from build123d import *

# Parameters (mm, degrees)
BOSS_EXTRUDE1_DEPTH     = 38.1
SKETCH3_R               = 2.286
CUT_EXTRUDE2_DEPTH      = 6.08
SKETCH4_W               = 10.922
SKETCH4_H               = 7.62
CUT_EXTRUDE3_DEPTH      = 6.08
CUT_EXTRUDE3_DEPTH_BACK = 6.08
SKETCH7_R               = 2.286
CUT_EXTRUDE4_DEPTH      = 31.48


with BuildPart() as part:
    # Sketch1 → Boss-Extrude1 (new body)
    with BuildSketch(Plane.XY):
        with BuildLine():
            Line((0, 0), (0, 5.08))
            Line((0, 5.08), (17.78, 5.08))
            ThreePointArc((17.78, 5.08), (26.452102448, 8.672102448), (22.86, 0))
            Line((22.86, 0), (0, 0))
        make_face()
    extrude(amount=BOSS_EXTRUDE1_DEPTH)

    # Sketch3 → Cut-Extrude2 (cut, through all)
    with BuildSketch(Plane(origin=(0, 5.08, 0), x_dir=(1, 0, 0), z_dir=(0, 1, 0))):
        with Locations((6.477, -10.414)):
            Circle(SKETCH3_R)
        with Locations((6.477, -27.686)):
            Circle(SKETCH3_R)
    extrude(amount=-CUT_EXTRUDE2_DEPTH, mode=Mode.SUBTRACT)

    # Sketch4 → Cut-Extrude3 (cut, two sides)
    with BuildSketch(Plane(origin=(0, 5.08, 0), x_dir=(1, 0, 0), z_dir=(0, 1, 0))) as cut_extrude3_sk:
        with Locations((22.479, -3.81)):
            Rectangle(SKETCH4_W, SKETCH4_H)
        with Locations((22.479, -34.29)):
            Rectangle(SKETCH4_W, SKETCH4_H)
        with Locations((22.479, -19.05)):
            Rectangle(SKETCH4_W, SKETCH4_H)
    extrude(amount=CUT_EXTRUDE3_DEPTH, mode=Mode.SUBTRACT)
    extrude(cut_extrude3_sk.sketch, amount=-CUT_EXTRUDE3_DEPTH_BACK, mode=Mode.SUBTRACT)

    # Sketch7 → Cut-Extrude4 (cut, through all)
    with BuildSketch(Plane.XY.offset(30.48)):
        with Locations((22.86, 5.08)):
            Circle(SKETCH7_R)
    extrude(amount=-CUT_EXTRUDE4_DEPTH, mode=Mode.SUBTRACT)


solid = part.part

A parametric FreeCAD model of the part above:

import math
import FreeCAD as App
import Part
import Sketcher
from FreeCAD import Vector
Q = App.Units.Quantity

doc = App.newDocument("Part")
body = doc.addObject("PartDesign::Body", "Body")

sketch1 = body.newObject("Sketcher::SketchObject", "Sketch")
sketch1.AttachmentSupport = (doc.getObject("XY_Plane"), [""])
sketch1.MapMode = "FlatFace"
sketch1.addGeometry(Part.LineSegment(Vector(0, 5.08, 0), Vector(0, 0, 0)), False)
sketch1.addGeometry(Part.LineSegment(Vector(0, 0, 0), Vector(22.86, 0, 0)), False)
sketch1.addGeometry(Part.ArcOfCircle(Part.Circle(Vector(22.86, 5.08, 0), Vector(0, 0, 1), 5.08), math.radians(-90), math.radians(180)), False)
sketch1.addGeometry(Part.LineSegment(Vector(17.78, 5.08, 0), Vector(0, 5.08, 0)), False)
sketch1.addConstraint(Sketcher.Constraint("Coincident", 0, 2, 1, 1))
sketch1.addConstraint(Sketcher.Constraint("Tangent", 1, 2, 2, 1))
sketch1.addConstraint(Sketcher.Constraint("Coincident", 2, 2, 3, 1))
sketch1.addConstraint(Sketcher.Constraint("Coincident", 3, 2, 0, 1))
sketch1.addConstraint(Sketcher.Constraint("Vertical", 0))
sketch1.addConstraint(Sketcher.Constraint("Horizontal", 1))
sketch1.addConstraint(Sketcher.Constraint("Horizontal", 3))
sketch1.addConstraint(Sketcher.Constraint("Coincident", 0, 2, -1, 1))
sketch1.addConstraint(Sketcher.Constraint("Radius", 2, Q("0.2 in")))
sketch1.addConstraint(Sketcher.Constraint("DistanceX", 1, 1, 1, 2, Q("0.9 in")))
sketch1.addConstraint(Sketcher.Constraint("DistanceY", 0, 2, 0, 1, Q("0.2 in")))
pad1 = body.newObject("PartDesign::Pad", "Pad")
pad1.Profile = sketch1
pad1.Length = Q("1.5 in")

sketch2 = body.newObject("Sketcher::SketchObject", "Sketch001")
sketch2.AttachmentSupport = (doc.getObject("XZ_Plane"), [""])
sketch2.MapMode = "FlatFace"
sketch2.AttachmentOffset = App.Placement(Vector(0, 0, -0.2 * 25.4), App.Rotation())
sketch2.addGeometry(Part.Circle(Vector(6.477, 10.414, 0), Vector(0, 0, 1), 2.286), False)
sketch2.addGeometry(Part.Circle(Vector(6.477, 27.686, 0), Vector(0, 0, 1), 2.286), False)
sketch2.addConstraint(Sketcher.Constraint("Equal", 0, 1))
sketch2.addConstraint(Sketcher.Constraint("Vertical", 0, 3, 1, 3))
sketch2.addConstraint(Sketcher.Constraint("Diameter", 0, Q("0.18 in")))
sketch2.addConstraint(Sketcher.Constraint("DistanceY", -1, 1, 0, 3, Q("0.41 in")))
sketch2.addConstraint(Sketcher.Constraint("DistanceY", -1, 1, 1, 3, Q("1.09 in")))
sketch2.addConstraint(Sketcher.Constraint("DistanceX", -1, 1, 0, 3, Q("0.255 in")))
pocket1 = body.newObject("PartDesign::Pocket", "Pocket")
pocket1.Profile = sketch2
pocket1.Type = "ThroughAll"
pocket1.Reversed = True

sketch3 = body.newObject("Sketcher::SketchObject", "Sketch002")
sketch3.AttachmentSupport = (doc.getObject("XZ_Plane"), [""])
sketch3.MapMode = "FlatFace"
sketch3.AttachmentOffset = App.Placement(Vector(0, 0, -0.2 * 25.4), App.Rotation())
sketch3.addGeometry(Part.LineSegment(Vector(17.018, 0, 0), Vector(17.018, 7.62, 0)), False)
sketch3.addGeometry(Part.LineSegment(Vector(17.018, 7.62, 0), Vector(27.94, 7.62, 0)), False)
sketch3.addGeometry(Part.LineSegment(Vector(27.94, 7.62, 0), Vector(27.94, 0, 0)), False)
sketch3.addGeometry(Part.LineSegment(Vector(27.94, 0, 0), Vector(17.018, 0, 0)), False)
sketch3.addGeometry(Part.LineSegment(Vector(17.018, 30.48, 0), Vector(17.018, 38.1, 0)), False)
sketch3.addGeometry(Part.LineSegment(Vector(17.018, 38.1, 0), Vector(27.94, 38.1, 0)), False)
sketch3.addGeometry(Part.LineSegment(Vector(27.94, 38.1, 0), Vector(27.94, 30.48, 0)), False)
sketch3.addGeometry(Part.LineSegment(Vector(27.94, 30.48, 0), Vector(17.018, 30.48, 0)), False)
sketch3.addGeometry(Part.LineSegment(Vector(17.018, 15.24, 0), Vector(17.018, 22.86, 0)), False)
sketch3.addGeometry(Part.LineSegment(Vector(17.018, 22.86, 0), Vector(27.94, 22.86, 0)), False)
sketch3.addGeometry(Part.LineSegment(Vector(27.94, 22.86, 0), Vector(27.94, 15.24, 0)), False)
sketch3.addGeometry(Part.LineSegment(Vector(27.94, 15.24, 0), Vector(17.018, 15.24, 0)), False)
sketch3.addConstraint(Sketcher.Constraint("Coincident", 0, 2, 1, 1))
sketch3.addConstraint(Sketcher.Constraint("Coincident", 1, 2, 2, 1))
sketch3.addConstraint(Sketcher.Constraint("Coincident", 2, 2, 3, 1))
sketch3.addConstraint(Sketcher.Constraint("Coincident", 3, 2, 0, 1))
sketch3.addConstraint(Sketcher.Constraint("Coincident", 4, 2, 5, 1))
sketch3.addConstraint(Sketcher.Constraint("Coincident", 5, 2, 6, 1))
sketch3.addConstraint(Sketcher.Constraint("Coincident", 6, 2, 7, 1))
sketch3.addConstraint(Sketcher.Constraint("Coincident", 7, 2, 4, 1))
sketch3.addConstraint(Sketcher.Constraint("Coincident", 8, 2, 9, 1))
sketch3.addConstraint(Sketcher.Constraint("Coincident", 9, 2, 10, 1))
sketch3.addConstraint(Sketcher.Constraint("Coincident", 10, 2, 11, 1))
sketch3.addConstraint(Sketcher.Constraint("Coincident", 11, 2, 8, 1))
sketch3.addConstraint(Sketcher.Constraint("Vertical", 0))
sketch3.addConstraint(Sketcher.Constraint("Horizontal", 1))
sketch3.addConstraint(Sketcher.Constraint("Vertical", 2))
sketch3.addConstraint(Sketcher.Constraint("Horizontal", 3))
sketch3.addConstraint(Sketcher.Constraint("Vertical", 4))
sketch3.addConstraint(Sketcher.Constraint("Horizontal", 5))
sketch3.addConstraint(Sketcher.Constraint("Vertical", 6))
sketch3.addConstraint(Sketcher.Constraint("Horizontal", 7))
sketch3.addConstraint(Sketcher.Constraint("Vertical", 8))
sketch3.addConstraint(Sketcher.Constraint("Horizontal", 9))
sketch3.addConstraint(Sketcher.Constraint("Vertical", 10))
sketch3.addConstraint(Sketcher.Constraint("Horizontal", 11))
sketch3.addConstraint(Sketcher.Constraint("PointOnObject", 2, 2, -1))
sketch3.addConstraint(Sketcher.Constraint("Vertical", 3, 2, 4, 2))
sketch3.addConstraint(Sketcher.Constraint("Vertical", 2, 2, 5, 2))
sketch3.addConstraint(Sketcher.Constraint("Vertical", 7, 2, 8, 2))
sketch3.addConstraint(Sketcher.Constraint("Vertical", 6, 2, 9, 2))
sketch3.addConstraint(Sketcher.Constraint("Equal", 2, 4))
sketch3.addConstraint(Sketcher.Constraint("Equal", 6, 8))
sketch3.addConstraint(Sketcher.Constraint("DistanceY", 0, 1, 0, 2, Q("0.3 in")))
sketch3.addConstraint(Sketcher.Constraint("DistanceX", 1, 1, 1, 2, Q("0.43 in")))
sketch3.addConstraint(Sketcher.Constraint("DistanceX", -1, 1, 1, 2, Q("1.1 in")))
sketch3.addConstraint(Sketcher.Constraint("DistanceY", -1, 1, 4, 2, Q("1.5 in")))
sketch3.addConstraint(Sketcher.Constraint("DistanceY", -1, 1, 8, 2, Q("0.9 in")))
pocket2 = body.newObject("PartDesign::Pocket", "Pocket001")
pocket2.Profile = sketch3
pocket2.Type = "ThroughAll"
pocket2.Midplane = True

sketch4 = body.newObject("Sketcher::SketchObject", "Sketch003")
sketch4.AttachmentSupport = (doc.getObject("XY_Plane"), [""])
sketch4.MapMode = "FlatFace"
sketch4.AttachmentOffset = App.Placement(Vector(0, 0, 1.2 * 25.4), App.Rotation())
sketch4.addGeometry(Part.Circle(Vector(22.86, 5.08, 0), Vector(0, 0, 1), 2.286), False)
sketch4.addConstraint(Sketcher.Constraint("Diameter", 0, Q("0.18 in")))
sketch4.addConstraint(Sketcher.Constraint("DistanceX", -1, 1, 0, 3, Q("0.9 in")))
sketch4.addConstraint(Sketcher.Constraint("DistanceY", -1, 1, 0, 3, Q("0.2 in")))
pocket3 = body.newObject("PartDesign::Pocket", "Pocket002")
pocket3.Profile = sketch4
pocket3.Type = "ThroughAll"

doc.recompute()
